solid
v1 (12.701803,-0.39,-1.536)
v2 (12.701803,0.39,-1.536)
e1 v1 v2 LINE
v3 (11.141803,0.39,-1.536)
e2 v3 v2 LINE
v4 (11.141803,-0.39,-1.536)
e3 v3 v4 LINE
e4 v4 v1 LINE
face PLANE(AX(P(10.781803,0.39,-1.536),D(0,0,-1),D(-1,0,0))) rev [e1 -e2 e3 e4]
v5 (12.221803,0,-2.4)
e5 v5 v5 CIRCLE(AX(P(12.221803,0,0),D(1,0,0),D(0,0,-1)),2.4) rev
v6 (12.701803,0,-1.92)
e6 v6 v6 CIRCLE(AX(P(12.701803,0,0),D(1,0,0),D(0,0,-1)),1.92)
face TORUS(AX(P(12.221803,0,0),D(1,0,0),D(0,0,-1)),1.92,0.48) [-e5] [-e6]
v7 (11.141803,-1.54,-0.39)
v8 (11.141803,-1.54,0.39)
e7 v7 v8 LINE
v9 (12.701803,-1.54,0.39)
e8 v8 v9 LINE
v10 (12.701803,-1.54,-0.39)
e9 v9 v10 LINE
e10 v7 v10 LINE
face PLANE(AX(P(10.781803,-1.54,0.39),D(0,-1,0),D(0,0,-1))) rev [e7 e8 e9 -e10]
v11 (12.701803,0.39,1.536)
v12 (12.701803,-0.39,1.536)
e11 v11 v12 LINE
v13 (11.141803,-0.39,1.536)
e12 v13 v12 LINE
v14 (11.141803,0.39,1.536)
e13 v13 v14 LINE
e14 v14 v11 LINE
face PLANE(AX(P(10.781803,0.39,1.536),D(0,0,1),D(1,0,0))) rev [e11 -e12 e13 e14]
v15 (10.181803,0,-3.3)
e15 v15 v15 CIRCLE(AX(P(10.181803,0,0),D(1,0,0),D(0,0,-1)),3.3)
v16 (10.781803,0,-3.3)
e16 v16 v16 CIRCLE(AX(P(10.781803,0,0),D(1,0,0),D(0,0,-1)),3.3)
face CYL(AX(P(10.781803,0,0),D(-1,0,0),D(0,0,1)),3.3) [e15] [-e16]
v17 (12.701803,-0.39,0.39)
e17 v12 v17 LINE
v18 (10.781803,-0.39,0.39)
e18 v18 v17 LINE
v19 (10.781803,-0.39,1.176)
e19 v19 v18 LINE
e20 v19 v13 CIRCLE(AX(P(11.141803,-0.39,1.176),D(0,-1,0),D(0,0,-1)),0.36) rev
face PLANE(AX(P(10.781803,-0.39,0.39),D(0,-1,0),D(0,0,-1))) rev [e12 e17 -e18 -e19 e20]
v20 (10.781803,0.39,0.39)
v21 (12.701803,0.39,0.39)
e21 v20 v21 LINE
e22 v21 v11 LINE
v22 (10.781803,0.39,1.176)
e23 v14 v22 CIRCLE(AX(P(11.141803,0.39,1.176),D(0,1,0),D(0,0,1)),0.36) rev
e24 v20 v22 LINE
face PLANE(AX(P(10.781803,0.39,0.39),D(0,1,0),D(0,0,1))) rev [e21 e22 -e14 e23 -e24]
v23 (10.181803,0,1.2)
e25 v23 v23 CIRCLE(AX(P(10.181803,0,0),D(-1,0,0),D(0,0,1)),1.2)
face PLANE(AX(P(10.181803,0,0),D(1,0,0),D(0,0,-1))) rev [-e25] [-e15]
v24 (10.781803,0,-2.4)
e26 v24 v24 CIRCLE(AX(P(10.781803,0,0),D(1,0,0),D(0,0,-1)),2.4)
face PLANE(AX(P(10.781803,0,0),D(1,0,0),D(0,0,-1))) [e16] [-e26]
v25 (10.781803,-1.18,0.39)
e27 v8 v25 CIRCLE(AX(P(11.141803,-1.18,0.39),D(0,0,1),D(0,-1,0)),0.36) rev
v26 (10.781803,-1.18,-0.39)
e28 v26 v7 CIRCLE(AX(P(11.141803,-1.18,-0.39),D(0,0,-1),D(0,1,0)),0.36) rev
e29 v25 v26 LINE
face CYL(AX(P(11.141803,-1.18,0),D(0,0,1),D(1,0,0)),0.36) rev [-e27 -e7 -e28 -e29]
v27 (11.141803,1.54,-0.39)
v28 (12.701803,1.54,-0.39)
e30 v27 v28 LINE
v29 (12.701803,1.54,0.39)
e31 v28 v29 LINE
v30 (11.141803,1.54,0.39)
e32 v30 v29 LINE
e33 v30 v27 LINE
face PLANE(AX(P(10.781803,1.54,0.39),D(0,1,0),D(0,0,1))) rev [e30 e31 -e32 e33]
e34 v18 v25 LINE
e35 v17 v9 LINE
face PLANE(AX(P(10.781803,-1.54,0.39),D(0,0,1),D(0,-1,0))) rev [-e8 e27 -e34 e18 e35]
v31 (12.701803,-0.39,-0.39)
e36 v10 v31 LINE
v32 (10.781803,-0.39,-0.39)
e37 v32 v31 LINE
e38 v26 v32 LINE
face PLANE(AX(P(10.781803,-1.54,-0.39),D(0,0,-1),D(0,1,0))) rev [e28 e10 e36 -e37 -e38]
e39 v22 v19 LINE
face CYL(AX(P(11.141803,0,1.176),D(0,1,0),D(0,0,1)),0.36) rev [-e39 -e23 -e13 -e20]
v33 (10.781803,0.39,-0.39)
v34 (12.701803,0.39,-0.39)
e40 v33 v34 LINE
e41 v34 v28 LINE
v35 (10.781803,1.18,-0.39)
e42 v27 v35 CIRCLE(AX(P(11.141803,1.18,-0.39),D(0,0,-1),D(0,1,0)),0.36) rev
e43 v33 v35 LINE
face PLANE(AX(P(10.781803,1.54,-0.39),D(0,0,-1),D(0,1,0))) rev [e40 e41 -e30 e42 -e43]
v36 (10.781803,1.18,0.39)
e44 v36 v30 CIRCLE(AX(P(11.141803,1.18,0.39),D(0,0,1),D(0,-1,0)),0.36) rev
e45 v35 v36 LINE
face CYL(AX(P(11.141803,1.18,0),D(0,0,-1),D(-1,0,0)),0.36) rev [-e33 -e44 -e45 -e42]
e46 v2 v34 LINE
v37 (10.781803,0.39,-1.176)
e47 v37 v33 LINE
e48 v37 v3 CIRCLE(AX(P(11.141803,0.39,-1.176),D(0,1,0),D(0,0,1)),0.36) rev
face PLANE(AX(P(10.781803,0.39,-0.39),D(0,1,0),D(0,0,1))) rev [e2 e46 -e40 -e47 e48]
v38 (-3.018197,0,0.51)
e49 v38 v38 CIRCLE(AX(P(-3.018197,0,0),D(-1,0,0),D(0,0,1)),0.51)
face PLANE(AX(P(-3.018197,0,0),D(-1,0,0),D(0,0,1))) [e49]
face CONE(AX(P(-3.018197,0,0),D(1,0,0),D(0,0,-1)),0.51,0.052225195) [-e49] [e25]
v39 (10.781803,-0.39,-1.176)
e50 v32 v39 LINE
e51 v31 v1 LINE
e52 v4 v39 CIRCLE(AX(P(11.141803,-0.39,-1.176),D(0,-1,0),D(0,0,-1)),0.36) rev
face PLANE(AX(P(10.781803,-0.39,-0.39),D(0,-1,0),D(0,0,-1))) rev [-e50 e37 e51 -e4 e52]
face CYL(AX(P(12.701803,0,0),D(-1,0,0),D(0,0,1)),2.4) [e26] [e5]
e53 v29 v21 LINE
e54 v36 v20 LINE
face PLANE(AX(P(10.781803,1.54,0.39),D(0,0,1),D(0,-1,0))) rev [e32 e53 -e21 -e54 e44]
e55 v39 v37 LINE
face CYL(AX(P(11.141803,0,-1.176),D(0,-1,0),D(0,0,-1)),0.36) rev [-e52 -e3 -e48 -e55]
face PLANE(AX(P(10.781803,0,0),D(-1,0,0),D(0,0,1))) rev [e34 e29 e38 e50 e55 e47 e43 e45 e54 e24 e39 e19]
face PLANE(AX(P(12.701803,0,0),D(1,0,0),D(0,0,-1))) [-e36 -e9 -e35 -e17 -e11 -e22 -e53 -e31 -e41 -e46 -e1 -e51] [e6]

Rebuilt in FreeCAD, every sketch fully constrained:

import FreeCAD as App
import Part
import Sketcher

V = App.Vector
Q = App.Units.Quantity


def edges_at(feature, points):
    """Names of the edges that pass closest to the given points."""
    edges = feature.Shape.Edges
    near = lambda p: min(range(len(edges)), key=lambda i: edges[i].distToShape(Part.Vertex(*p))[0])
    return sorted({f"Edge{near(p) + 1}" for p in points})

doc = App.newDocument("Part")
body = doc.addObject("PartDesign::Body", "Body")

sketch1 = body.newObject("Sketcher::SketchObject", "Sketch")
sketch1.AttachmentSupport = (doc.getObject("XY_Plane"), [""])
sketch1.MapMode = "FlatFace"
sketch1.addGeometry(Part.LineSegment(V(10.2, 0, 0), V(-3, 0, 0)), False)
sketch1.addGeometry(Part.LineSegment(V(-3, 0, 0), V(-3, -0.5, 0)), False)
sketch1.addGeometry(Part.LineSegment(V(-3, -0.5, 0), V(10.2, -1.2, 0)), False)
sketch1.addGeometry(Part.LineSegment(V(10.2, -1.2, 0), V(10.2, 0, 0)), False)
sketch1.addConstraint(Sketcher.Constraint("Coincident", 0, 2, 1, 1))
sketch1.addConstraint(Sketcher.Constraint("Coincident", 1, 2, 2, 1))
sketch1.addConstraint(Sketcher.Constraint("Coincident", 2, 2, 3, 1))
sketch1.addConstraint(Sketcher.Constraint("Coincident", 3, 2, 0, 1))
sketch1.addConstraint(Sketcher.Constraint("Horizontal", 0))
sketch1.addConstraint(Sketcher.Constraint("Vertical", 1))
sketch1.addConstraint(Sketcher.Constraint("Vertical", 3))
sketch1.addConstraint(Sketcher.Constraint("PointOnObject", 0, 2, -1))
sketch1.addConstraint(Sketcher.Constraint("DistanceX", 0, 2, 0, 1, Q("13.2 mm")))
sketch1.addConstraint(Sketcher.Constraint("DistanceY", 3, 1, 3, 2, Q("1.2 mm")))
sketch1.addConstraint(Sketcher.Constraint("DistanceY", 1, 2, 1, 1, Q("0.51 mm")))
sketch1.addConstraint(Sketcher.Constraint("DistanceX", 0, 2, -1, 1, Q("3.018197 mm")))
revolution = body.newObject("PartDesign::Revolution", "Revolution")
revolution.Profile = sketch1
revolution.ReferenceAxis = (sketch1, ["H_Axis"])
revolution.Angle = 360

sketch2 = body.newObject("Sketcher::SketchObject", "Sketch001")
sketch2.AttachmentSupport = (doc.getObject("YZ_Plane"), [""])
sketch2.MapMode = "FlatFace"
sketch2.AttachmentOffset = App.Placement(V(0, 0, 10.181803), App.Rotation())
sketch2.addGeometry(Part.Circle(V(0, 0, 0), V(0, 0, 1), 3.3), False)
sketch2.addConstraint(Sketcher.Constraint("Coincident", 0, 3, -1, 1))
sketch2.addConstraint(Sketcher.Constraint("Diameter", 0, Q("6.6 mm")))
pad1 = body.newObject("PartDesign::Pad", "Pad")
pad1.Profile = sketch2
pad1.Length = 0.6

sketch3 = body.newObject("Sketcher::SketchObject", "Sketch002")
sketch3.AttachmentSupport = (doc.getObject("YZ_Plane"), [""])
sketch3.MapMode = "FlatFace"
sketch3.AttachmentOffset = App.Placement(V(0, 0, 10.781803), App.Rotation())
sketch3.addGeometry(Part.Circle(V(0, 0, 0), V(0, 0, 1), 2.4), False)
sketch3.addConstraint(Sketcher.Constraint("Coincident", 0, 3, -1, 1))
sketch3.addConstraint(Sketcher.Constraint("Diameter", 0, Q("4.8 mm")))
pad2 = body.newObject("PartDesign::Pad", "Pad001")
pad2.Profile = sketch3
pad2.Length = 1.92

sketch4 = body.newObject("Sketcher::SketchObject", "Sketch003")
sketch4.AttachmentSupport = (doc.getObject("YZ_Plane"), [""])
sketch4.MapMode = "FlatFace"
sketch4.AttachmentOffset = App.Placement(V(0, 0, 12.701803), App.Rotation())
sketch4.addGeometry(Part.LineSegment(V(1.5, -0.4, 0), V(1.5, 0.4, 0)), False)
sketch4.addGeometry(Part.LineSegment(V(1.5, 0.4, 0), V(0.4, 0.4, 0)), False)
sketch4.addGeometry(Part.LineSegment(V(0.4, 0.4, 0), V(0.4, 1.5, 0)), False)
sketch4.addGeometry(Part.LineSegment(V(0.4, 1.5, 0), V(-0.4, 1.5, 0)), False)
sketch4.addGeometry(Part.LineSegment(V(-0.4, 1.5, 0), V(-0.4, 0.4, 0)), False)
sketch4.addGeometry(Part.LineSegment(V(-0.4, 0.4, 0), V(-1.5, 0.4, 0)), False)
sketch4.addGeometry(Part.LineSegment(V(-1.5, 0.4, 0), V(-1.5, -0.4, 0)), False)
sketch4.addGeometry(Part.LineSegment(V(-1.5, -0.4, 0), V(-0.4, -0.4, 0)), False)
sketch4.addGeometry(Part.LineSegment(V(-0.4, -0.4, 0), V(-0.4, -1.5, 0)), False)
sketch4.addGeometry(Part.LineSegment(V(-0.4, -1.5, 0), V(0.4, -1.5, 0)), False)
sketch4.addGeometry(Part.LineSegment(V(0.4, -1.5, 0), V(0.4, -0.4, 0)), False)
sketch4.addGeometry(Part.LineSegment(V(0.4, -0.4, 0), V(1.5, -0.4, 0)), False)
sketch4.addConstraint(Sketcher.Constraint("Coincident", 0, 2, 1, 1))
sketch4.addConstraint(Sketcher.Constraint("Coincident", 1, 2, 2, 1))
sketch4.addConstraint(Sketcher.Constraint("Coincident", 2, 2, 3, 1))
sketch4.addConstraint(Sketcher.Constraint("Coincident", 3, 2, 4, 1))
sketch4.addConstraint(Sketcher.Constraint("Coincident", 4, 2, 5, 1))
sketch4.addConstraint(Sketcher.Constraint("Coincident", 5, 2, 6, 1))
sketch4.addConstraint(Sketcher.Constraint("Coincident", 6, 2, 7, 1))
sketch4.addConstraint(Sketcher.Constraint("Coincident", 7, 2, 8, 1))
sketch4.addConstraint(Sketcher.Constraint("Coincident", 8, 2, 9, 1))
sketch4.addConstraint(Sketcher.Constraint("Coincident", 9, 2, 10, 1))
sketch4.addConstraint(Sketcher.Constraint("Coincident", 10, 2, 11, 1))
sketch4.addConstraint(Sketcher.Constraint("Coincident", 11, 2, 0, 1))
sketch4.addConstraint(Sketcher.Constraint("Vertical", 0))
sketch4.addConstraint(Sketcher.Constraint("Horizontal", 1))
sketch4.addConstraint(Sketcher.Constraint("Vertical", 2))
sketch4.addConstraint(Sketcher.Constraint("Horizontal", 3))
sketch4.addConstraint(Sketcher.Constraint("Vertical", 4))
sketch4.addConstraint(Sketcher.Constraint("Horizontal", 5))
sketch4.addConstraint(Sketcher.Constraint("Vertical", 6))
sketch4.addConstraint(Sketcher.Constraint("Horizontal", 7))
sketch4.addConstraint(Sketcher.Constraint("Vertical", 8))
sketch4.addConstraint(Sketcher.Constraint("Horizontal", 9))
sketch4.addConstraint(Sketcher.Constraint("Vertical", 10))
sketch4.addConstraint(Sketcher.Constraint("Horizontal", 11))
sketch4.addConstraint(Sketcher.Constraint("Symmetric", 0, 2, 6, 2, -1, 1))
sketch4.addConstraint(Sketcher.Constraint("Symmetric", 2, 2, 8, 2, -1, 1))
sketch4.addConstraint(Sketcher.Constraint("Symmetric", 4, 2, 10, 2, -1, 1))
sketch4.addConstraint(Sketcher.Constraint("Symmetric", 1, 2, 4, 2, -2))
sketch4.addConstraint(Sketcher.Constraint("Equal", 9, 0))
sketch4.addConstraint(Sketcher.Constraint("DistanceX", 1, 2, 1, 1, Q("1.15 mm")))
sketch4.addConstraint(Sketcher.Constraint("DistanceX", 3, 2, 3, 1, Q("0.78 mm")))
sketch4.addConstraint(Sketcher.Constraint("DistanceY", 2, 1, 2, 2, Q("1.146 mm")))
pocket1 = body.newObject("PartDesign::Pocket", "Pocket")
pocket1.Profile = sketch4
pocket1.Length = 1.92
doc.recompute()

fillet = body.newObject("PartDesign::Fillet", "Fillet")
fillet.Base = (pocket1, edges_at(pocket1, [
    (10.782, -1.54, 0),
    (10.782, 0, 1.536),
    (10.782, 1.54, 0),
    (10.782, 0, -1.536),
]))
fillet.Radius = 0.36
doc.recompute()

fillet2 = body.newObject("PartDesign::Fillet", "Fillet001")
fillet2.Base = (fillet, edges_at(fillet, [(12.702, 0, 2.4)]))
fillet2.Radius = 0.48

doc.recompute()
